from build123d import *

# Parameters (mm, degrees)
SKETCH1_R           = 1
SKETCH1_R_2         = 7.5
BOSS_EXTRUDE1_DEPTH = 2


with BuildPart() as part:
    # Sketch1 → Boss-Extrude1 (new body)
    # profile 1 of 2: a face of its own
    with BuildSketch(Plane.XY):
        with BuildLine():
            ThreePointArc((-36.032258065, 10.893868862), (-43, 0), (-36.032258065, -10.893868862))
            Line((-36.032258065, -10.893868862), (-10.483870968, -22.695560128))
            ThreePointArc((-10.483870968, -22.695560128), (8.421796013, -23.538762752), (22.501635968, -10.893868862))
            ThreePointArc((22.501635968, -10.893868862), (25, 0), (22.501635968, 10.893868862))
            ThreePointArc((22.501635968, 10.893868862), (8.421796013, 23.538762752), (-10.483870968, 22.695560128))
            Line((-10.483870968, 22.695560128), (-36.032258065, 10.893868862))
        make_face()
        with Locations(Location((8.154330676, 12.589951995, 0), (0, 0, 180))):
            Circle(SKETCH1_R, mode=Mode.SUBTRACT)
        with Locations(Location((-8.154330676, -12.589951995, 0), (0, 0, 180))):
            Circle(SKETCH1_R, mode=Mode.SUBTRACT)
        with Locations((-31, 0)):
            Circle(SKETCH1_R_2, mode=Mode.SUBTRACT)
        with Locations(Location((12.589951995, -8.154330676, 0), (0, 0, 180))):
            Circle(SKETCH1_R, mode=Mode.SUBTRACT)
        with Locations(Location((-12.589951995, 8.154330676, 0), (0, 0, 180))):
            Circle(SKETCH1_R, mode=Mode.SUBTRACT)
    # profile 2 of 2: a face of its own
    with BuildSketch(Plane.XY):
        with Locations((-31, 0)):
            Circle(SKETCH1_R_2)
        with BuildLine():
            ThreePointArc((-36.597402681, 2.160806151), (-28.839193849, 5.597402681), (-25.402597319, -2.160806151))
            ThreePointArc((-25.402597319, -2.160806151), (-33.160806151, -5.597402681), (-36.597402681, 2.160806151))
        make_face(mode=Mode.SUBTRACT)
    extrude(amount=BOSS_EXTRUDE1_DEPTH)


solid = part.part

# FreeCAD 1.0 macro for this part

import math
import FreeCAD as App
import Part
import Sketcher
Q = App.Units.Quantity

doc = App.newDocument("Part")
body = doc.addObject("PartDesign::Body", "Body")

# Sketch on XY plane
sketch1 = doc.addObject("Sketcher::SketchObject", "Sketch")
body.addObject(sketch1)
sketch1.AttachmentSupport = (doc.XY_Plane, [""])
sketch1.MapMode = "FlatFace"
sketch1.addGeometry([
    Part.ArcOfCircle(Part.Circle(App.Vector(-31, 0, 0), App.Vector(0, 0, 1), 12), math.radians(115), math.radians(245)),  # 0
    Part.LineSegment(App.Vector(-36, -10.9, 0), App.Vector(-10.5, -22.7, 0)),  # 1
    Part.ArcOfCircle(Part.Circle(App.Vector(0, 0, 0), App.Vector(0, 0, 1), 25), math.radians(-115), math.radians(-26)),  # 2
    Part.ArcOfCircle(Part.Circle(App.Vector(0, 0, 0), App.Vector(0, 0, 1), 25), math.radians(-26), math.radians(26)),  # 3
    Part.ArcOfCircle(Part.Circle(App.Vector(0, 0, 0), App.Vector(0, 0, 1), 25), math.radians(26), math.radians(115)),  # 4
    Part.LineSegment(App.Vector(-10.5, 22.7, 0), App.Vector(-36, 10.9, 0)),  # 5
    Part.Circle(App.Vector(-8.2, -12.6, 0), App.Vector(0, 0, 1), 1),  # 6
    Part.Circle(App.Vector(12.6, -8.2, 0), App.Vector(0, 0, 1), 1),  # 7
    Part.Circle(App.Vector(-12.6, 8.2, 0), App.Vector(0, 0, 1), 1),  # 8
    Part.Circle(App.Vector(8.2, 12.6, 0), App.Vector(0, 0, 1), 1),  # 9
    Part.Circle(App.Vector(-31, 0, 0), App.Vector(0, 0, 1), 6),  # 10
], False)
sketch1.addConstraint([
    Sketcher.Constraint("Tangent", 0, 2, 1, 1),
    Sketcher.Constraint("Tangent", 1, 2, 2, 1),
    Sketcher.Constraint("Tangent", 2, 2, 3, 1),
    Sketcher.Constraint("Tangent", 3, 2, 4, 1),
    Sketcher.Constraint("Tangent", 4, 2, 5, 1),
    Sketcher.Constraint("Tangent", 5, 2, 0, 1),
    Sketcher.Constraint("Coincident", 2, 3, -1, 1),
    Sketcher.Constraint("Coincident", 4, 3, -1, 1),
    Sketcher.Constraint("Coincident", 10, 3, 0, 3),
    Sketcher.Constraint("Equal", 6, 7),
    Sketcher.Constraint("Equal", 7, 8),
    Sketcher.Constraint("Equal", 8, 9),
    Sketcher.Constraint("Symmetric", 7, 3, 8, 3, -1, 1),
    Sketcher.Constraint("Symmetric", 6, 3, 9, 3, -1, 1),
    Sketcher.Constraint("PointOnObject", 0, 3, -1),
    Sketcher.Constraint("Horizontal", 0, 2, 2, 2),
    Sketcher.Constraint("Horizontal", 3, 2, 5, 2),
    Sketcher.Constraint("Diameter", 6, Q("2 mm")),
    Sketcher.Constraint("Diameter", 10, Q("12 mm")),
    Sketcher.Constraint("Radius", 0, Q("12 mm")),
    Sketcher.Constraint("Radius", 2, Q("25 mm")),
    Sketcher.Constraint("DistanceX", 0, 3, -1, 1, Q("31 mm")),
    Sketcher.Constraint("DistanceY", 0, 2, 8, 3, Q("19.0482 mm")),
    Sketcher.Constraint("DistanceX", 4, 2, 9, 3, Q("18.638202 mm")),
    Sketcher.Constraint("DistanceY", 6, 3, -1, 1, Q("12.589952 mm")),
    Sketcher.Constraint("DistanceX", -1, 1, 7, 3, Q("12.589952 mm")),
])
pad1 = doc.addObject("PartDesign::Pad", "Pad")
body.addObject(pad1)
pad1.Profile = sketch1
pad1.Length = 2

doc.recompute()
